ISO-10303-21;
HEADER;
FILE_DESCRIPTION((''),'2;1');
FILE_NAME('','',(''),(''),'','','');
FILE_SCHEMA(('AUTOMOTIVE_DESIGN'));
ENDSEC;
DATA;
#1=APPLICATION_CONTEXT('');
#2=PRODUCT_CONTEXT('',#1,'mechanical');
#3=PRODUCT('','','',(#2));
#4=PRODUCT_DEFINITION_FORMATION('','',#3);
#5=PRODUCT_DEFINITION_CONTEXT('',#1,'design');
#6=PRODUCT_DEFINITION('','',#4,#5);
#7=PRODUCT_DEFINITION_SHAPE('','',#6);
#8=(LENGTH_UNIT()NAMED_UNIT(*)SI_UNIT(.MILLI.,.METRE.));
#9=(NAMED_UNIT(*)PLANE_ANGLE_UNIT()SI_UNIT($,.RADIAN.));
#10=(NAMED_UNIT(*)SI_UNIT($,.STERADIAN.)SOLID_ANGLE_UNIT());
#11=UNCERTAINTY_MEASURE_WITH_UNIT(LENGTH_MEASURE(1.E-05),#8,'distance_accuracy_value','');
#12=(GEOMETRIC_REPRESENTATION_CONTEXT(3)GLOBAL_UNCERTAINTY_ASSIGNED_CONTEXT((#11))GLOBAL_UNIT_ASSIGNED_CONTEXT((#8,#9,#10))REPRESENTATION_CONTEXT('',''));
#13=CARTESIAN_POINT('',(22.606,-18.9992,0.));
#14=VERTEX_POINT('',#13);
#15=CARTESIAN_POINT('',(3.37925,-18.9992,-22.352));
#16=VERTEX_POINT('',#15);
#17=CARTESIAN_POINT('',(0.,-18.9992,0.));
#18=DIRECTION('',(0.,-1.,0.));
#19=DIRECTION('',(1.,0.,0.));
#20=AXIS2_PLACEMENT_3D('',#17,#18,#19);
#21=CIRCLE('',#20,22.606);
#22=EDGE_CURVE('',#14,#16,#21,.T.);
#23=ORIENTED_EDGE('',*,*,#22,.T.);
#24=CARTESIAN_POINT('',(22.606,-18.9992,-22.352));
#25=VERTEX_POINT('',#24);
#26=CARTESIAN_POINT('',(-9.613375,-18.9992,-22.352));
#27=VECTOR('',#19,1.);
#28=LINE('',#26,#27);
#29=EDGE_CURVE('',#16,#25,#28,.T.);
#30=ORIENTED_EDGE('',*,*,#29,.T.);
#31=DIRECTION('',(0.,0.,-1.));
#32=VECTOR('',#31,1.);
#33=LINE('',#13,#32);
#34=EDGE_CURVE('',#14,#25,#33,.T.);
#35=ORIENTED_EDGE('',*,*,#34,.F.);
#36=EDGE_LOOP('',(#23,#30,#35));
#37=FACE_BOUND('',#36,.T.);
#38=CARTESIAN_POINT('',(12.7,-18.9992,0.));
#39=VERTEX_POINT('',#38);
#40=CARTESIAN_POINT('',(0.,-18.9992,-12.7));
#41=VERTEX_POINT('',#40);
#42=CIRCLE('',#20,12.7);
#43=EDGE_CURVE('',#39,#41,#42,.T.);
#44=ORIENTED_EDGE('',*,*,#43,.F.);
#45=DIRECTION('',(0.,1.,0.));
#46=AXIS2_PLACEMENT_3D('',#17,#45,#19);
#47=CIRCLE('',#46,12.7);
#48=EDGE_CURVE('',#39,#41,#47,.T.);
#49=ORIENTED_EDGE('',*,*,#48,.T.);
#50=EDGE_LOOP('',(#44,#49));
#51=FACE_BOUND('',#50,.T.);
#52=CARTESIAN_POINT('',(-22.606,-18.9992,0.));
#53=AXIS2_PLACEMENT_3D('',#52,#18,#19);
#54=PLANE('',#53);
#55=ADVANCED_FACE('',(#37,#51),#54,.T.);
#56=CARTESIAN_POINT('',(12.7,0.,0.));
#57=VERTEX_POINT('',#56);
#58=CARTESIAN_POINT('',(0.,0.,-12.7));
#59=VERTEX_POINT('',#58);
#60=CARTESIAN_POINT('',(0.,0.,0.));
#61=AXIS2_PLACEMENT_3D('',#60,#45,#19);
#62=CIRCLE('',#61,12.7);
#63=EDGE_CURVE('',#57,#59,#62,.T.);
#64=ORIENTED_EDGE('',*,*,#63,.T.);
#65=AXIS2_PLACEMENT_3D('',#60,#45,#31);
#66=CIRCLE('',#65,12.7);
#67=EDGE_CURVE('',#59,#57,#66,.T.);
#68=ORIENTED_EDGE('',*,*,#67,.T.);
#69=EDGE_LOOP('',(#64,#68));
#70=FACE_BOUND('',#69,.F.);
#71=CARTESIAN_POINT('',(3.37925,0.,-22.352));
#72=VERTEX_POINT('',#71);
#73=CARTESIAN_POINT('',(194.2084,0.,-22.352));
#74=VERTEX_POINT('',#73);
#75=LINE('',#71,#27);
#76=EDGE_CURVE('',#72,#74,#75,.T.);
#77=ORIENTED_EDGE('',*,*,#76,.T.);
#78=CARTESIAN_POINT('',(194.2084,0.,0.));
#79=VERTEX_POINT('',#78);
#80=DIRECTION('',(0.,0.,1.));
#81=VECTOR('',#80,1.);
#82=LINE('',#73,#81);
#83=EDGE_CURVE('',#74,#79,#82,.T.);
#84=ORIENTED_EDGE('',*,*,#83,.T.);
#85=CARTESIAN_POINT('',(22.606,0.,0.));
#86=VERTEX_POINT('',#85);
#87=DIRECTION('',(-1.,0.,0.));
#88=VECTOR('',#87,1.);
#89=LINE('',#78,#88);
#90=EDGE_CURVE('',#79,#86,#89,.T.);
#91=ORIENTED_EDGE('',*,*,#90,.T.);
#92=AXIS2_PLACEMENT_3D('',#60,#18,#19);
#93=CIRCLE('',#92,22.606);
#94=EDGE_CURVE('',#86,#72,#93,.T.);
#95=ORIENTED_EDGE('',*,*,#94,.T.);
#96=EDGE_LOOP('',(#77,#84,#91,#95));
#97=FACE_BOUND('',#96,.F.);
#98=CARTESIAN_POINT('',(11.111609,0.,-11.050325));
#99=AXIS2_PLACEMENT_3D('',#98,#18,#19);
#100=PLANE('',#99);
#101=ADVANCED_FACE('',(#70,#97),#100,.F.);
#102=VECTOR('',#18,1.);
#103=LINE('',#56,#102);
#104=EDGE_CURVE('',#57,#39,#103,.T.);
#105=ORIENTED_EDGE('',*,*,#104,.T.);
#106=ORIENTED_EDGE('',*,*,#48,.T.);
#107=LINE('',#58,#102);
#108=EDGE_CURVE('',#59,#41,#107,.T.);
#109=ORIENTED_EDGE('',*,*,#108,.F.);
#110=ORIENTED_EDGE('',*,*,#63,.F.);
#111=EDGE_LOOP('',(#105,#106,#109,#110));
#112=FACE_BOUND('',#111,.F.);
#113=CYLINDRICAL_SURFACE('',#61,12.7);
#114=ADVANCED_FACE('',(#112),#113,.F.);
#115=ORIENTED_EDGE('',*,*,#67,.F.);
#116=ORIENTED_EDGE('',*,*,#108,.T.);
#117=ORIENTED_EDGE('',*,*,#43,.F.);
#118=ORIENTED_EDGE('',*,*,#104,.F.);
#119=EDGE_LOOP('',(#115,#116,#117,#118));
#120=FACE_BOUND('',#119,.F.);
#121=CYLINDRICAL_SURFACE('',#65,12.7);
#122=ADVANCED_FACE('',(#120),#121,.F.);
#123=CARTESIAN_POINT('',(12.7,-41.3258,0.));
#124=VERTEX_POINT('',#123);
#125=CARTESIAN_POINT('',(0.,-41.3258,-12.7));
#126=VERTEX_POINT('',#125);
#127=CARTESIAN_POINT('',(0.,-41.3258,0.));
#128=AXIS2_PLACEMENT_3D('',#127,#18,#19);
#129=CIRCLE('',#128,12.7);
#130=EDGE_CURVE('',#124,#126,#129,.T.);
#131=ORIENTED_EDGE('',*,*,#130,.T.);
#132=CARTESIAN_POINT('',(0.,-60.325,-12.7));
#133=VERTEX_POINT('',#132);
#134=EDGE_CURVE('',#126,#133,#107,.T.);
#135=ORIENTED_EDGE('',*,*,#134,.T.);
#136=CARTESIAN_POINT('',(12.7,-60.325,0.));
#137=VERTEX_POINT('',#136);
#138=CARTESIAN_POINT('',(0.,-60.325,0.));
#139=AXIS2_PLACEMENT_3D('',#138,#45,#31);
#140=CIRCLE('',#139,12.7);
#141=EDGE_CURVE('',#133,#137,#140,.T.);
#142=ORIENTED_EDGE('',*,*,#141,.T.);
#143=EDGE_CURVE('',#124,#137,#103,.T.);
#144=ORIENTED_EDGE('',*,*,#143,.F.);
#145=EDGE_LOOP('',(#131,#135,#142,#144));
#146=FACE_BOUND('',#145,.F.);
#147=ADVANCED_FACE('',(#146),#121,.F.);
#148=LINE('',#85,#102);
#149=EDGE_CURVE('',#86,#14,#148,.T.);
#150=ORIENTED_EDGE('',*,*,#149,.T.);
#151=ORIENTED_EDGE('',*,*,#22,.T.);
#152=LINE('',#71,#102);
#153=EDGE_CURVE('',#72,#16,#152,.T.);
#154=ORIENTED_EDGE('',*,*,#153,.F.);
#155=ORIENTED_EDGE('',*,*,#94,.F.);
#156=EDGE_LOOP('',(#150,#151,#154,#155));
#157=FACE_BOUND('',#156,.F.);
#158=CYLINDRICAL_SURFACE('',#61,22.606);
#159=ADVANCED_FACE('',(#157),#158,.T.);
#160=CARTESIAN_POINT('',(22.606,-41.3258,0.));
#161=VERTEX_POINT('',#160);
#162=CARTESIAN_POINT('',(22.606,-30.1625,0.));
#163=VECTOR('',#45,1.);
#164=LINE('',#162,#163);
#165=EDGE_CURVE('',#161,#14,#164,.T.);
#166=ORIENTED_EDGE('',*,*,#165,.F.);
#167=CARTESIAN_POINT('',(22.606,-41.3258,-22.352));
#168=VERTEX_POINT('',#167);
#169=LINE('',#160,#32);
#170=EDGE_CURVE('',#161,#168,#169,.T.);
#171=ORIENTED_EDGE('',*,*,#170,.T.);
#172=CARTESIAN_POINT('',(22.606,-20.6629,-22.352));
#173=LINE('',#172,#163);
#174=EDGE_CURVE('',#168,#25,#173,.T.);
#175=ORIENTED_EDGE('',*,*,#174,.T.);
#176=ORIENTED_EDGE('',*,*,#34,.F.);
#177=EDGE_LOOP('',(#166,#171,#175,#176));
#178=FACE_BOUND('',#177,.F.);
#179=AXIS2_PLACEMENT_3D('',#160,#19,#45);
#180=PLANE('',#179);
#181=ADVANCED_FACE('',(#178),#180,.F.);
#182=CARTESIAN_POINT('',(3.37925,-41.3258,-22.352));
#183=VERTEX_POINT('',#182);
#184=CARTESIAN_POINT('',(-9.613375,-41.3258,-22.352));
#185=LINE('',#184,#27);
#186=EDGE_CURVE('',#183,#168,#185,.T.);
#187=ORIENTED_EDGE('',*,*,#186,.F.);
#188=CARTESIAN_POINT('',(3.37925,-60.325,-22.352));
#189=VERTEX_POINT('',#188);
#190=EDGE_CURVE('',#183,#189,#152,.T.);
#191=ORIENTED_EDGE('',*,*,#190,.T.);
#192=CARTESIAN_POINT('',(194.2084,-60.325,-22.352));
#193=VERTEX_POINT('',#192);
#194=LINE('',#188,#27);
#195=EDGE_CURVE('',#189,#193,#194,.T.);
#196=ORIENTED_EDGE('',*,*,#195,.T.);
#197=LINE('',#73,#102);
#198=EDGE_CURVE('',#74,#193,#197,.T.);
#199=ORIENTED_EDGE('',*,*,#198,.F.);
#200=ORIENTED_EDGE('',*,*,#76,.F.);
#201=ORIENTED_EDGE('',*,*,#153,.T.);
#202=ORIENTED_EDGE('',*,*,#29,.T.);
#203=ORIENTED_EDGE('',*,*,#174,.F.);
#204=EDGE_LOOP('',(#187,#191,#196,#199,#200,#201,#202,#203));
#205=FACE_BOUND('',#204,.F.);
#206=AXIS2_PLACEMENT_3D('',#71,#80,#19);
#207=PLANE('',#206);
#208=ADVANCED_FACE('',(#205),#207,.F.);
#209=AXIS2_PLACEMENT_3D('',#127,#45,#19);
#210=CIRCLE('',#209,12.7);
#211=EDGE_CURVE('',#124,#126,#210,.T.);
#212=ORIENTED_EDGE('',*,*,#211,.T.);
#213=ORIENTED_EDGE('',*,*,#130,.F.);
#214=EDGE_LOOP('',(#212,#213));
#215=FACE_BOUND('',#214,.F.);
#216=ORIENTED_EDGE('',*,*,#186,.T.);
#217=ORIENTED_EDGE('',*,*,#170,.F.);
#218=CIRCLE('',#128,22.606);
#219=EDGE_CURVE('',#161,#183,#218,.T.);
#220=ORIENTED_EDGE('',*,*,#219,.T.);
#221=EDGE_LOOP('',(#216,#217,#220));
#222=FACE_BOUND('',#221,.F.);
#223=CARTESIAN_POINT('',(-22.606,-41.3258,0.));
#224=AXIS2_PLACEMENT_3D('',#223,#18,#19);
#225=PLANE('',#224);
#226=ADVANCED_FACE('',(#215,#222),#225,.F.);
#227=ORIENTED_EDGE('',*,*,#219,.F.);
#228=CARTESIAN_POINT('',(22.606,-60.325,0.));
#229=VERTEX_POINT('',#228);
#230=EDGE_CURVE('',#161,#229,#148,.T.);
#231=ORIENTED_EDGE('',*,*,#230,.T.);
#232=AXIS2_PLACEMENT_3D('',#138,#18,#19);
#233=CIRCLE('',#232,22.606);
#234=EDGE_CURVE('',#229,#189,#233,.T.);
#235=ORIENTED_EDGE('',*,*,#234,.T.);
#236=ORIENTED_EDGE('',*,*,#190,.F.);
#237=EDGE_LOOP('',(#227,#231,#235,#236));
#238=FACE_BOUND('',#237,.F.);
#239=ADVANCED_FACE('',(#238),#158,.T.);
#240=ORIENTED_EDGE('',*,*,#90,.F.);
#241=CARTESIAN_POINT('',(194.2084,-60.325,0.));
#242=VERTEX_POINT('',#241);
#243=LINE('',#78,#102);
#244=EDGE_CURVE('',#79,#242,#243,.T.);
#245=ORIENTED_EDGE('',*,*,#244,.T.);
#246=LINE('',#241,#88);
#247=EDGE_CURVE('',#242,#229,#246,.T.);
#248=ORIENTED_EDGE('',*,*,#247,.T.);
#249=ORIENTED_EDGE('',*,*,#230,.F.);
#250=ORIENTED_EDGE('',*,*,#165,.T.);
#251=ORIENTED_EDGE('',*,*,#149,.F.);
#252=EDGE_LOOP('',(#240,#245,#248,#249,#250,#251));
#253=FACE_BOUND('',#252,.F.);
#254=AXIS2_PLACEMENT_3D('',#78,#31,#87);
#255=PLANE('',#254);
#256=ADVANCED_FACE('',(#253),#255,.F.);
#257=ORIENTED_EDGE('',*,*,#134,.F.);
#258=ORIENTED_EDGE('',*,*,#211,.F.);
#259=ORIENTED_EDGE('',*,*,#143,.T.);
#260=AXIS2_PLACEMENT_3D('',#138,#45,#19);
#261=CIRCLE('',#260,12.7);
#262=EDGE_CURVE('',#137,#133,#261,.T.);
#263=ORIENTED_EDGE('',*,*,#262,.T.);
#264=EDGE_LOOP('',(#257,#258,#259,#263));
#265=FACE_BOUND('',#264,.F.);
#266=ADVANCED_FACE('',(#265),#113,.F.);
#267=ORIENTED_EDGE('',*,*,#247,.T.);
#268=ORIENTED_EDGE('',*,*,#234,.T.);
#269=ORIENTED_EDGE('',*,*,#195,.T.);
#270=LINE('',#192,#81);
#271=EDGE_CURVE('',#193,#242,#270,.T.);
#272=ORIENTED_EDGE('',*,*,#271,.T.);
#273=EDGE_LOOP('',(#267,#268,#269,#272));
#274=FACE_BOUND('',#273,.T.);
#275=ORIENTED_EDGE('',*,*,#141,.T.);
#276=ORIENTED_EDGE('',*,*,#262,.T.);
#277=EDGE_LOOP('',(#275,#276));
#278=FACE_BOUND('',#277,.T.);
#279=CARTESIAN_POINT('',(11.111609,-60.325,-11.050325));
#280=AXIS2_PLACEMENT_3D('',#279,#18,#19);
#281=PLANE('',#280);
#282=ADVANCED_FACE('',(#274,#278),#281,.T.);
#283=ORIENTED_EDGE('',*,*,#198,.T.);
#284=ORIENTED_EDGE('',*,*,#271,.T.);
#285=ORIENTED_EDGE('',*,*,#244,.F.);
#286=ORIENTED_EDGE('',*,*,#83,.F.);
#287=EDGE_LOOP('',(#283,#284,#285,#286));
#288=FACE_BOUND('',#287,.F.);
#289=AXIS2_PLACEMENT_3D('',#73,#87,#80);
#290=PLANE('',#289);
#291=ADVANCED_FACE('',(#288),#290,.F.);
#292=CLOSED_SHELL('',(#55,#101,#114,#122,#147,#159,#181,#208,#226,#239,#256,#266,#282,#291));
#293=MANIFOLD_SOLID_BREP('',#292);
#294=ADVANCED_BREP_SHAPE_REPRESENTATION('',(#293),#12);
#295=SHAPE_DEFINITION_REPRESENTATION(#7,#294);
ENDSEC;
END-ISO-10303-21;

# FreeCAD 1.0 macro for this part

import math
import FreeCAD as App
import Part
import Sketcher
Q = App.Units.Quantity

doc = App.newDocument("Part")
body = doc.addObject("PartDesign::Body", "Body")

# Sketch on XZ plane
sketch1 = doc.addObject("Sketcher::SketchObject", "Sketch")
body.addObject(sketch1)
sketch1.AttachmentSupport = (doc.XZ_Plane, [""])
sketch1.MapMode = "FlatFace"
sketch1.addGeometry([
    Part.ArcOfCircle(Part.Circle(App.Vector(0, 0, 0), App.Vector(0, 0, 1), 23), math.radians(0), math.radians(279)),  # 0
    Part.LineSegment(App.Vector(3, -22, 0), App.Vector(194, -22, 0)),  # 1
    Part.LineSegment(App.Vector(194, -22, 0), App.Vector(194, 0, 0)),  # 2
    Part.LineSegment(App.Vector(194, 0, 0), App.Vector(23, 0, 0)),  # 3
    Part.ArcOfCircle(Part.Circle(App.Vector(0, 0, 0), App.Vector(0, 0, 1), 13), math.radians(-90), math.radians(0)),  # 4
    Part.ArcOfCircle(Part.Circle(App.Vector(0, 0, 0), App.Vector(0, 0, 1), 13), math.radians(0), math.radians(270)),  # 5
], False)
sketch1.addConstraint([
    Sketcher.Constraint("Coincident", 0, 2, 1, 1),
    Sketcher.Constraint("Coincident", 1, 2, 2, 1),
    Sketcher.Constraint("Coincident", 2, 2, 3, 1),
    Sketcher.Constraint("Coincident", 3, 2, 0, 1),
    Sketcher.Constraint("Tangent", 4, 1, 5, 2),
    Sketcher.Constraint("Coincident", 5, 1, 4, 2),
    Sketcher.Constraint("Horizontal", 1),
    Sketcher.Constraint("Vertical", 2),
    Sketcher.Constraint("Horizontal", 3),
    Sketcher.Constraint("Coincident", 0, 3, -1, 1),
    Sketcher.Constraint("Coincident", 4, 3, -1, 1),
    Sketcher.Constraint("PointOnObject", 2, 2, -1),
    Sketcher.Constraint("PointOnObject", 4, 1, -2),
    Sketcher.Constraint("PointOnObject", 5, 1, -1),
    Sketcher.Constraint("Radius", 4, Q("0.5 in")),
    Sketcher.Constraint("Radius", 0, Q("0.89 in")),
    Sketcher.Constraint("DistanceY", 2, 1, 2, 2, Q("0.88 in")),
    Sketcher.Constraint("DistanceX", 3, 2, 3, 1, Q("6.756 in")),
])
pad1 = doc.addObject("PartDesign::Pad", "Pad")
body.addObject(pad1)
pad1.Profile = sketch1
pad1.Length = Q("2.375 in")

# Sketch on XY plane
sketch2 = doc.addObject("Sketcher::SketchObject", "Sketch001")
body.addObject(sketch2)
sketch2.AttachmentSupport = (doc.XY_Plane, [""])
sketch2.MapMode = "FlatFace"
sketch2.addGeometry([
    Part.LineSegment(App.Vector(-23, -19, 0), App.Vector(-23, -41, 0)),
    Part.LineSegment(App.Vector(-23, -41, 0), App.Vector(23, -41, 0)),
    Part.LineSegment(App.Vector(23, -41, 0), App.Vector(23, -19, 0)),
    Part.LineSegment(App.Vector(23, -19, 0), App.Vector(-23, -19, 0)),
], False)
sketch2.addConstraint([
    Sketcher.Constraint("Coincident", 0, 2, 1, 1),
    Sketcher.Constraint("Coincident", 1, 2, 2, 1),
    Sketcher.Constraint("Coincident", 2, 2, 3, 1),
    Sketcher.Constraint("Coincident", 3, 2, 0, 1),
    Sketcher.Constraint("Vertical", 0),
    Sketcher.Constraint("Horizontal", 1),
    Sketcher.Constraint("Vertical", 2),
    Sketcher.Constraint("Horizontal", 3),
    Sketcher.Constraint("DistanceX", 1, 1, 1, 2, Q("1.78 in")),
    Sketcher.Constraint("DistanceY", 0, 2, 0, 1, Q("0.879 in")),
    Sketcher.Constraint("DistanceX", 0, 2, -1, 1, Q("0.89 in")),
    Sketcher.Constraint("DistanceY", 0, 2, -1, 1, Q("1.627 in")),
])
pocket1 = doc.addObject("PartDesign::Pocket", "Pocket")
body.addObject(pocket1)
pocket1.Profile = sketch2
pocket1.Type = "ThroughAll"
pocket1.Midplane = True

doc.recompute()
